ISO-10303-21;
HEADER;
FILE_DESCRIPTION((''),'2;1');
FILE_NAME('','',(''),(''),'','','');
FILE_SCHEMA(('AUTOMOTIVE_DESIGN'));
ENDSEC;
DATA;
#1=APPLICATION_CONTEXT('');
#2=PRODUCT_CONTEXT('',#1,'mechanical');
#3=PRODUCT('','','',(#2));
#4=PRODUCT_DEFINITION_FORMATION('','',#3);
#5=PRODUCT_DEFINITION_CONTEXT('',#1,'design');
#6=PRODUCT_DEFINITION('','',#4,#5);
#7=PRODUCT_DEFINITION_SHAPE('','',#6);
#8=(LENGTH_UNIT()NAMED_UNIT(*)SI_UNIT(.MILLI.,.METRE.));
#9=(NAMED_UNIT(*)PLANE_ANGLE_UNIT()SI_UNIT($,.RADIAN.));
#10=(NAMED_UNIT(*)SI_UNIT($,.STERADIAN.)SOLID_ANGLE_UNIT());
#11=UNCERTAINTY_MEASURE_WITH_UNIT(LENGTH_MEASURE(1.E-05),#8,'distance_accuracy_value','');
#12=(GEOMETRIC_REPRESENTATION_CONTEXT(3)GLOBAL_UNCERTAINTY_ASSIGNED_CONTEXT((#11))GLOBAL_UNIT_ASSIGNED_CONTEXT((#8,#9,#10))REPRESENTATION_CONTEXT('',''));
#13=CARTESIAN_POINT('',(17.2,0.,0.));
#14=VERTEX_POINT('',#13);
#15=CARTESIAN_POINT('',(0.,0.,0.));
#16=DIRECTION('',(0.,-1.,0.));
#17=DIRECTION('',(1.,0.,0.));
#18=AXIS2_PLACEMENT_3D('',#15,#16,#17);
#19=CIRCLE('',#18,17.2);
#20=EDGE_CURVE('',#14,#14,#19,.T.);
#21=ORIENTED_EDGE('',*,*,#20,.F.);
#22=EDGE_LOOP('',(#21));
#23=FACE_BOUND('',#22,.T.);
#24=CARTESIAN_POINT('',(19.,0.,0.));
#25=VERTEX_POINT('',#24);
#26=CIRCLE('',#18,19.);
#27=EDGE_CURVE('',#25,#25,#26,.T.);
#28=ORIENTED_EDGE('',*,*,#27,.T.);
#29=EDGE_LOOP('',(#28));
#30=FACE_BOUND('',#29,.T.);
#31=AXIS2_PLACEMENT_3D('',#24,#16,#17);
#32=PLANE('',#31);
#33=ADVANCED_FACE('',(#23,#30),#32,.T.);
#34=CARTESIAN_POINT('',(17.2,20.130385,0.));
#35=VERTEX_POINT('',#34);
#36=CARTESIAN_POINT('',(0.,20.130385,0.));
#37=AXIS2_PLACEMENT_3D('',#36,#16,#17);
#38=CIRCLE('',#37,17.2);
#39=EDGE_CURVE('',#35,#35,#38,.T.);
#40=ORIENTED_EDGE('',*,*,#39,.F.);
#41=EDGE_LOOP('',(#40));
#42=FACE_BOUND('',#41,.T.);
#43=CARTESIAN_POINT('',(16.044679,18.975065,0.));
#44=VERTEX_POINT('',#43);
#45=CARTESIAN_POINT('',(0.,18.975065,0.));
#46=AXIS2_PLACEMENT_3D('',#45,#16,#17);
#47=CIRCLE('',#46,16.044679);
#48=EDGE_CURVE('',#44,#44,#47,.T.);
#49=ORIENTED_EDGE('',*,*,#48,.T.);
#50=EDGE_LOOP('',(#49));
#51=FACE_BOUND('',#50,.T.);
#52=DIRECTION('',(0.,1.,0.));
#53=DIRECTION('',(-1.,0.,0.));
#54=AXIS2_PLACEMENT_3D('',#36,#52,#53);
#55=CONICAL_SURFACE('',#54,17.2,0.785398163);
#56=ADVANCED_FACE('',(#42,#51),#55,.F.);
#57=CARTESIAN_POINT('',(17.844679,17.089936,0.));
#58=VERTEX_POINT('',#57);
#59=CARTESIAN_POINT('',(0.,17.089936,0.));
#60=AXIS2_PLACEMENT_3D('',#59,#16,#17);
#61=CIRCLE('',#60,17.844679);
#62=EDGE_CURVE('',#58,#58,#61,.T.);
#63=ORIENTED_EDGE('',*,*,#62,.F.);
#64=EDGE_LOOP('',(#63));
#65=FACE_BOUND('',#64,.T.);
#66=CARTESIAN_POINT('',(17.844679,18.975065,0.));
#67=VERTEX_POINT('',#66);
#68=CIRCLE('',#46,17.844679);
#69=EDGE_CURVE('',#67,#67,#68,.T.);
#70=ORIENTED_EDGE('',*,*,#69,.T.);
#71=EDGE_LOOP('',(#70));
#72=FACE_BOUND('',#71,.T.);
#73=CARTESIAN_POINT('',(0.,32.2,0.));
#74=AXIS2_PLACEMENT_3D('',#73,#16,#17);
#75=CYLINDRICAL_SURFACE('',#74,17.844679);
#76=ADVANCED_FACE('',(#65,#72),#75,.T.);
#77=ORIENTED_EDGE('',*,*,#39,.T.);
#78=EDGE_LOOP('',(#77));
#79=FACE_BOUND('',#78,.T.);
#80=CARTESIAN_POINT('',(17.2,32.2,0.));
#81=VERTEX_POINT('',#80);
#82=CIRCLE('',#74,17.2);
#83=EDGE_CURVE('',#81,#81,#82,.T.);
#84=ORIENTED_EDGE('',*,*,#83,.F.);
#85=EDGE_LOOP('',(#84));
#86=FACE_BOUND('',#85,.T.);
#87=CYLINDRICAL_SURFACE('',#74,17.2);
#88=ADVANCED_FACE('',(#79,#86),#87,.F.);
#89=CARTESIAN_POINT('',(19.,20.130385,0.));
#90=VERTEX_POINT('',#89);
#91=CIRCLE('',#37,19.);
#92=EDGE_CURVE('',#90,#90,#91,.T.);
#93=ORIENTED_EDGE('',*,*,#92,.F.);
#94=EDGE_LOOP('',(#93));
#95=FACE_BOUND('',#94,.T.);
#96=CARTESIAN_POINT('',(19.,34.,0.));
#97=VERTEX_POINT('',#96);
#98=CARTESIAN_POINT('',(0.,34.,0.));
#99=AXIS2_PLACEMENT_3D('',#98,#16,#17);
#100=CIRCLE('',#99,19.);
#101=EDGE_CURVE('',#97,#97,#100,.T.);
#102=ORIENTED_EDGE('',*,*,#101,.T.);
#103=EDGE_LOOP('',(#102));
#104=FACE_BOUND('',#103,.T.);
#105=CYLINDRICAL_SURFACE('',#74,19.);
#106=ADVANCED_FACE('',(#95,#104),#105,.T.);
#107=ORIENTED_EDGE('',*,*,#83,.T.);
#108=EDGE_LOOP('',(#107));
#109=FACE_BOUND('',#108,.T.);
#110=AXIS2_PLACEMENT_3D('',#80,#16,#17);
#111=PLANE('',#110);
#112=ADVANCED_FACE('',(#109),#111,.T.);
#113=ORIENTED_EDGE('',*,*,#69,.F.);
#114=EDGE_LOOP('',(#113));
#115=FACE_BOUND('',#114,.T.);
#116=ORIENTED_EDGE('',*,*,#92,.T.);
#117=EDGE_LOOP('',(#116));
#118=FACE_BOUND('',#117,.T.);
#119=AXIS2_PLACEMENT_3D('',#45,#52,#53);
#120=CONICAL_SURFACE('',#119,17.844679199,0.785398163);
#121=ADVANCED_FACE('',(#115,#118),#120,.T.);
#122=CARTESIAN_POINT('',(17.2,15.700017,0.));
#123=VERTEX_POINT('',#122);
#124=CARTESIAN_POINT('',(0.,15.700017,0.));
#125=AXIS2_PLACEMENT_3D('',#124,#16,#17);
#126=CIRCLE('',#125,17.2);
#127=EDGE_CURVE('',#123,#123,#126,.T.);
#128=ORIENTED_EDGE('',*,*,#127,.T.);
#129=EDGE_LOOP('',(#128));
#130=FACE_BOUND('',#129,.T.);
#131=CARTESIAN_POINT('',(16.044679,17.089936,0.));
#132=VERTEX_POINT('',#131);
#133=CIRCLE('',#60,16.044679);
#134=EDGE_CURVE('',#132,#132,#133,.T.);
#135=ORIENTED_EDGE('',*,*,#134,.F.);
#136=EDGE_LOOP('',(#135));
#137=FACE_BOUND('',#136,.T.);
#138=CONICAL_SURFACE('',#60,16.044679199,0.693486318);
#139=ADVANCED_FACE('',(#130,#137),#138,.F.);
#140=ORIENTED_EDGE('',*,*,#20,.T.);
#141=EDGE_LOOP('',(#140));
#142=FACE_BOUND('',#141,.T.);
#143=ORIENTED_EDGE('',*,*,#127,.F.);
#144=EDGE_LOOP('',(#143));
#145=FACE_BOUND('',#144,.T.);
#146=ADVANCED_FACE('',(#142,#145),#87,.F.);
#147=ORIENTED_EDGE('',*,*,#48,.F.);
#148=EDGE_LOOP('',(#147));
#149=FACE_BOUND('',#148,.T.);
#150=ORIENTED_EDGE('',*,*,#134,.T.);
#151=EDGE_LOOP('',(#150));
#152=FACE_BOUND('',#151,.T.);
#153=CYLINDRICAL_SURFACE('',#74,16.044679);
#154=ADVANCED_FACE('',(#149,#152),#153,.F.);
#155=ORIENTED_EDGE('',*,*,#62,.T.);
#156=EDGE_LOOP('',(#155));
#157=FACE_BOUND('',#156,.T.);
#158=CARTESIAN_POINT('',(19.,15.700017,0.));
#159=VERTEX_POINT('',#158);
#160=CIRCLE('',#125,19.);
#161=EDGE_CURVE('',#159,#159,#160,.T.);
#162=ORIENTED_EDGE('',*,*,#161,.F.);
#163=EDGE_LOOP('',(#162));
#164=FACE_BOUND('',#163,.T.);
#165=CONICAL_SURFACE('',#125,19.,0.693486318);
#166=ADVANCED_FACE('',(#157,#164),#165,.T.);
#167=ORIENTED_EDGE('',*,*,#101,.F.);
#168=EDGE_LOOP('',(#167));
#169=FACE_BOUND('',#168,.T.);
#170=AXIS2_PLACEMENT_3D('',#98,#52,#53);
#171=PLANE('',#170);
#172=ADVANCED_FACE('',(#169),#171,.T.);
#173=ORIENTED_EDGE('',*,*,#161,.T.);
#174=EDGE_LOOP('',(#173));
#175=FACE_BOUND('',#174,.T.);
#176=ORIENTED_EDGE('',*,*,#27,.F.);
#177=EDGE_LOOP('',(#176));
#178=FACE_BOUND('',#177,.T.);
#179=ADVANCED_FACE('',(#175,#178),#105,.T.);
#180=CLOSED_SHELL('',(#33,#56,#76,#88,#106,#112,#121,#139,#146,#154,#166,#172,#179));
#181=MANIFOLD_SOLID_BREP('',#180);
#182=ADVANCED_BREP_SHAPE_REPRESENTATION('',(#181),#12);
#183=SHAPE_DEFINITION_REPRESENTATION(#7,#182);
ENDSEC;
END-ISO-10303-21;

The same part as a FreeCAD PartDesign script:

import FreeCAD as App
import Part
import Sketcher
from FreeCAD import Vector
Q = App.Units.Quantity

doc = App.newDocument("Part")
body = doc.addObject("PartDesign::Body", "Body")

# Sketch on XY plane
sketch1 = doc.addObject("Sketcher::SketchObject", "Sketch")
body.addObject(sketch1)
sketch1.AttachmentSupport = (doc.XY_Plane, [""])
sketch1.MapMode = "FlatFace"
sketch1.addGeometry([
    Part.LineSegment(Vector(0, 34, 0), Vector(0, 32.2, 0)),  # 0
    Part.LineSegment(Vector(0, 32.2, 0), Vector(17.2, 32.2, 0)),  # 1
    Part.LineSegment(Vector(17.2, 32.2, 0), Vector(17.2, 20.130385, 0)),  # 2
    Part.LineSegment(Vector(17.2, 20.130385, 0), Vector(16.044679, 18.975065, 0)),  # 3
    Part.LineSegment(Vector(16.044679, 18.975065, 0), Vector(16.044679, 17.089936, 0)),  # 4
    Part.LineSegment(Vector(16.044679, 17.089936, 0), Vector(17.2, 15.700017, 0)),  # 5
    Part.LineSegment(Vector(17.2, 15.700017, 0), Vector(17.2, 0, 0)),  # 6
    Part.LineSegment(Vector(17.2, 0, 0), Vector(19, 0, 0)),  # 7
    Part.LineSegment(Vector(19, 0, 0), Vector(19, 15.700017, 0)),  # 8
    Part.LineSegment(Vector(19, 15.700017, 0), Vector(17.844679, 17.089936, 0)),  # 9
    Part.LineSegment(Vector(17.844679, 17.089936, 0), Vector(17.844679, 18.975065, 0)),  # 10
    Part.LineSegment(Vector(17.844679, 18.975065, 0), Vector(19, 20.130385, 0)),  # 11
    Part.LineSegment(Vector(19, 20.130385, 0), Vector(19, 34, 0)),  # 12
    Part.LineSegment(Vector(19, 34, 0), Vector(0, 34, 0)),  # 13
], False)
sketch1.addConstraint([
    Sketcher.Constraint("Coincident", 0, 2, 1, 1),
    Sketcher.Constraint("Coincident", 1, 2, 2, 1),
    Sketcher.Constraint("Coincident", 2, 2, 3, 1),
    Sketcher.Constraint("Coincident", 3, 2, 4, 1),
    Sketcher.Constraint("Coincident", 4, 2, 5, 1),
    Sketcher.Constraint("Coincident", 5, 2, 6, 1),
    Sketcher.Constraint("Coincident", 6, 2, 7, 1),
    Sketcher.Constraint("Coincident", 7, 2, 8, 1),
    Sketcher.Constraint("Coincident", 8, 2, 9, 1),
    Sketcher.Constraint("Coincident", 9, 2, 10, 1),
    Sketcher.Constraint("Coincident", 10, 2, 11, 1),
    Sketcher.Constraint("Coincident", 11, 2, 12, 1),
    Sketcher.Constraint("Coincident", 12, 2, 13, 1),
    Sketcher.Constraint("Coincident", 13, 2, 0, 1),
    Sketcher.Constraint("Vertical", 0),
    Sketcher.Constraint("Horizontal", 1),
    Sketcher.Constraint("Vertical", 2),
    Sketcher.Constraint("Vertical", 4),
    Sketcher.Constraint("Vertical", 6),
    Sketcher.Constraint("Horizontal", 7),
    Sketcher.Constraint("Vertical", 8),
    Sketcher.Constraint("Vertical", 10),
    Sketcher.Constraint("Vertical", 12),
    Sketcher.Constraint("Horizontal", 13),
    Sketcher.Constraint("PointOnObject", 0, 2, -2),
    Sketcher.Constraint("PointOnObject", 6, 2, -1),
    Sketcher.Constraint("Parallel", 5, 9),
    Sketcher.Constraint("Parallel", 3, 11),
    Sketcher.Constraint("Horizontal", 5, 2, 8, 2),
    Sketcher.Constraint("Horizontal", 4, 2, 9, 2),
    Sketcher.Constraint("Horizontal", 3, 2, 10, 2),
    Sketcher.Constraint("Horizontal", 2, 2, 11, 2),
    Sketcher.Constraint("Vertical", 2, 2, 5, 2),
    Sketcher.Constraint("Equal", 7, 0),
    Sketcher.Constraint("DistanceX", 13, 2, 13, 1, Q("19 mm")),
    Sketcher.Constraint("Angle", 3, Q("-135 deg")),
    Sketcher.Constraint("DistanceX", 1, 1, 1, 2, Q("17.2 mm")),
    Sketcher.Constraint("DistanceY", -1, 1, 12, 2, Q("34 mm")),
    Sketcher.Constraint("DistanceY", 4, 2, 4, 1, Q("1.885128 mm")),
    Sketcher.Constraint("Distance", 3, Q("1.63387 mm")),
    Sketcher.Constraint("DistanceY", 2, 2, 2, 1, Q("12.069615 mm")),
    Sketcher.Constraint("DistanceY", 6, 2, 6, 1, Q("15.700017 mm")),
])
revolution = doc.addObject("PartDesign::Revolution", "Revolution")
body.addObject(revolution)
revolution.Profile = sketch1
revolution.ReferenceAxis = (sketch1, ["V_Axis"])
revolution.Angle = 360

doc.recompute()
